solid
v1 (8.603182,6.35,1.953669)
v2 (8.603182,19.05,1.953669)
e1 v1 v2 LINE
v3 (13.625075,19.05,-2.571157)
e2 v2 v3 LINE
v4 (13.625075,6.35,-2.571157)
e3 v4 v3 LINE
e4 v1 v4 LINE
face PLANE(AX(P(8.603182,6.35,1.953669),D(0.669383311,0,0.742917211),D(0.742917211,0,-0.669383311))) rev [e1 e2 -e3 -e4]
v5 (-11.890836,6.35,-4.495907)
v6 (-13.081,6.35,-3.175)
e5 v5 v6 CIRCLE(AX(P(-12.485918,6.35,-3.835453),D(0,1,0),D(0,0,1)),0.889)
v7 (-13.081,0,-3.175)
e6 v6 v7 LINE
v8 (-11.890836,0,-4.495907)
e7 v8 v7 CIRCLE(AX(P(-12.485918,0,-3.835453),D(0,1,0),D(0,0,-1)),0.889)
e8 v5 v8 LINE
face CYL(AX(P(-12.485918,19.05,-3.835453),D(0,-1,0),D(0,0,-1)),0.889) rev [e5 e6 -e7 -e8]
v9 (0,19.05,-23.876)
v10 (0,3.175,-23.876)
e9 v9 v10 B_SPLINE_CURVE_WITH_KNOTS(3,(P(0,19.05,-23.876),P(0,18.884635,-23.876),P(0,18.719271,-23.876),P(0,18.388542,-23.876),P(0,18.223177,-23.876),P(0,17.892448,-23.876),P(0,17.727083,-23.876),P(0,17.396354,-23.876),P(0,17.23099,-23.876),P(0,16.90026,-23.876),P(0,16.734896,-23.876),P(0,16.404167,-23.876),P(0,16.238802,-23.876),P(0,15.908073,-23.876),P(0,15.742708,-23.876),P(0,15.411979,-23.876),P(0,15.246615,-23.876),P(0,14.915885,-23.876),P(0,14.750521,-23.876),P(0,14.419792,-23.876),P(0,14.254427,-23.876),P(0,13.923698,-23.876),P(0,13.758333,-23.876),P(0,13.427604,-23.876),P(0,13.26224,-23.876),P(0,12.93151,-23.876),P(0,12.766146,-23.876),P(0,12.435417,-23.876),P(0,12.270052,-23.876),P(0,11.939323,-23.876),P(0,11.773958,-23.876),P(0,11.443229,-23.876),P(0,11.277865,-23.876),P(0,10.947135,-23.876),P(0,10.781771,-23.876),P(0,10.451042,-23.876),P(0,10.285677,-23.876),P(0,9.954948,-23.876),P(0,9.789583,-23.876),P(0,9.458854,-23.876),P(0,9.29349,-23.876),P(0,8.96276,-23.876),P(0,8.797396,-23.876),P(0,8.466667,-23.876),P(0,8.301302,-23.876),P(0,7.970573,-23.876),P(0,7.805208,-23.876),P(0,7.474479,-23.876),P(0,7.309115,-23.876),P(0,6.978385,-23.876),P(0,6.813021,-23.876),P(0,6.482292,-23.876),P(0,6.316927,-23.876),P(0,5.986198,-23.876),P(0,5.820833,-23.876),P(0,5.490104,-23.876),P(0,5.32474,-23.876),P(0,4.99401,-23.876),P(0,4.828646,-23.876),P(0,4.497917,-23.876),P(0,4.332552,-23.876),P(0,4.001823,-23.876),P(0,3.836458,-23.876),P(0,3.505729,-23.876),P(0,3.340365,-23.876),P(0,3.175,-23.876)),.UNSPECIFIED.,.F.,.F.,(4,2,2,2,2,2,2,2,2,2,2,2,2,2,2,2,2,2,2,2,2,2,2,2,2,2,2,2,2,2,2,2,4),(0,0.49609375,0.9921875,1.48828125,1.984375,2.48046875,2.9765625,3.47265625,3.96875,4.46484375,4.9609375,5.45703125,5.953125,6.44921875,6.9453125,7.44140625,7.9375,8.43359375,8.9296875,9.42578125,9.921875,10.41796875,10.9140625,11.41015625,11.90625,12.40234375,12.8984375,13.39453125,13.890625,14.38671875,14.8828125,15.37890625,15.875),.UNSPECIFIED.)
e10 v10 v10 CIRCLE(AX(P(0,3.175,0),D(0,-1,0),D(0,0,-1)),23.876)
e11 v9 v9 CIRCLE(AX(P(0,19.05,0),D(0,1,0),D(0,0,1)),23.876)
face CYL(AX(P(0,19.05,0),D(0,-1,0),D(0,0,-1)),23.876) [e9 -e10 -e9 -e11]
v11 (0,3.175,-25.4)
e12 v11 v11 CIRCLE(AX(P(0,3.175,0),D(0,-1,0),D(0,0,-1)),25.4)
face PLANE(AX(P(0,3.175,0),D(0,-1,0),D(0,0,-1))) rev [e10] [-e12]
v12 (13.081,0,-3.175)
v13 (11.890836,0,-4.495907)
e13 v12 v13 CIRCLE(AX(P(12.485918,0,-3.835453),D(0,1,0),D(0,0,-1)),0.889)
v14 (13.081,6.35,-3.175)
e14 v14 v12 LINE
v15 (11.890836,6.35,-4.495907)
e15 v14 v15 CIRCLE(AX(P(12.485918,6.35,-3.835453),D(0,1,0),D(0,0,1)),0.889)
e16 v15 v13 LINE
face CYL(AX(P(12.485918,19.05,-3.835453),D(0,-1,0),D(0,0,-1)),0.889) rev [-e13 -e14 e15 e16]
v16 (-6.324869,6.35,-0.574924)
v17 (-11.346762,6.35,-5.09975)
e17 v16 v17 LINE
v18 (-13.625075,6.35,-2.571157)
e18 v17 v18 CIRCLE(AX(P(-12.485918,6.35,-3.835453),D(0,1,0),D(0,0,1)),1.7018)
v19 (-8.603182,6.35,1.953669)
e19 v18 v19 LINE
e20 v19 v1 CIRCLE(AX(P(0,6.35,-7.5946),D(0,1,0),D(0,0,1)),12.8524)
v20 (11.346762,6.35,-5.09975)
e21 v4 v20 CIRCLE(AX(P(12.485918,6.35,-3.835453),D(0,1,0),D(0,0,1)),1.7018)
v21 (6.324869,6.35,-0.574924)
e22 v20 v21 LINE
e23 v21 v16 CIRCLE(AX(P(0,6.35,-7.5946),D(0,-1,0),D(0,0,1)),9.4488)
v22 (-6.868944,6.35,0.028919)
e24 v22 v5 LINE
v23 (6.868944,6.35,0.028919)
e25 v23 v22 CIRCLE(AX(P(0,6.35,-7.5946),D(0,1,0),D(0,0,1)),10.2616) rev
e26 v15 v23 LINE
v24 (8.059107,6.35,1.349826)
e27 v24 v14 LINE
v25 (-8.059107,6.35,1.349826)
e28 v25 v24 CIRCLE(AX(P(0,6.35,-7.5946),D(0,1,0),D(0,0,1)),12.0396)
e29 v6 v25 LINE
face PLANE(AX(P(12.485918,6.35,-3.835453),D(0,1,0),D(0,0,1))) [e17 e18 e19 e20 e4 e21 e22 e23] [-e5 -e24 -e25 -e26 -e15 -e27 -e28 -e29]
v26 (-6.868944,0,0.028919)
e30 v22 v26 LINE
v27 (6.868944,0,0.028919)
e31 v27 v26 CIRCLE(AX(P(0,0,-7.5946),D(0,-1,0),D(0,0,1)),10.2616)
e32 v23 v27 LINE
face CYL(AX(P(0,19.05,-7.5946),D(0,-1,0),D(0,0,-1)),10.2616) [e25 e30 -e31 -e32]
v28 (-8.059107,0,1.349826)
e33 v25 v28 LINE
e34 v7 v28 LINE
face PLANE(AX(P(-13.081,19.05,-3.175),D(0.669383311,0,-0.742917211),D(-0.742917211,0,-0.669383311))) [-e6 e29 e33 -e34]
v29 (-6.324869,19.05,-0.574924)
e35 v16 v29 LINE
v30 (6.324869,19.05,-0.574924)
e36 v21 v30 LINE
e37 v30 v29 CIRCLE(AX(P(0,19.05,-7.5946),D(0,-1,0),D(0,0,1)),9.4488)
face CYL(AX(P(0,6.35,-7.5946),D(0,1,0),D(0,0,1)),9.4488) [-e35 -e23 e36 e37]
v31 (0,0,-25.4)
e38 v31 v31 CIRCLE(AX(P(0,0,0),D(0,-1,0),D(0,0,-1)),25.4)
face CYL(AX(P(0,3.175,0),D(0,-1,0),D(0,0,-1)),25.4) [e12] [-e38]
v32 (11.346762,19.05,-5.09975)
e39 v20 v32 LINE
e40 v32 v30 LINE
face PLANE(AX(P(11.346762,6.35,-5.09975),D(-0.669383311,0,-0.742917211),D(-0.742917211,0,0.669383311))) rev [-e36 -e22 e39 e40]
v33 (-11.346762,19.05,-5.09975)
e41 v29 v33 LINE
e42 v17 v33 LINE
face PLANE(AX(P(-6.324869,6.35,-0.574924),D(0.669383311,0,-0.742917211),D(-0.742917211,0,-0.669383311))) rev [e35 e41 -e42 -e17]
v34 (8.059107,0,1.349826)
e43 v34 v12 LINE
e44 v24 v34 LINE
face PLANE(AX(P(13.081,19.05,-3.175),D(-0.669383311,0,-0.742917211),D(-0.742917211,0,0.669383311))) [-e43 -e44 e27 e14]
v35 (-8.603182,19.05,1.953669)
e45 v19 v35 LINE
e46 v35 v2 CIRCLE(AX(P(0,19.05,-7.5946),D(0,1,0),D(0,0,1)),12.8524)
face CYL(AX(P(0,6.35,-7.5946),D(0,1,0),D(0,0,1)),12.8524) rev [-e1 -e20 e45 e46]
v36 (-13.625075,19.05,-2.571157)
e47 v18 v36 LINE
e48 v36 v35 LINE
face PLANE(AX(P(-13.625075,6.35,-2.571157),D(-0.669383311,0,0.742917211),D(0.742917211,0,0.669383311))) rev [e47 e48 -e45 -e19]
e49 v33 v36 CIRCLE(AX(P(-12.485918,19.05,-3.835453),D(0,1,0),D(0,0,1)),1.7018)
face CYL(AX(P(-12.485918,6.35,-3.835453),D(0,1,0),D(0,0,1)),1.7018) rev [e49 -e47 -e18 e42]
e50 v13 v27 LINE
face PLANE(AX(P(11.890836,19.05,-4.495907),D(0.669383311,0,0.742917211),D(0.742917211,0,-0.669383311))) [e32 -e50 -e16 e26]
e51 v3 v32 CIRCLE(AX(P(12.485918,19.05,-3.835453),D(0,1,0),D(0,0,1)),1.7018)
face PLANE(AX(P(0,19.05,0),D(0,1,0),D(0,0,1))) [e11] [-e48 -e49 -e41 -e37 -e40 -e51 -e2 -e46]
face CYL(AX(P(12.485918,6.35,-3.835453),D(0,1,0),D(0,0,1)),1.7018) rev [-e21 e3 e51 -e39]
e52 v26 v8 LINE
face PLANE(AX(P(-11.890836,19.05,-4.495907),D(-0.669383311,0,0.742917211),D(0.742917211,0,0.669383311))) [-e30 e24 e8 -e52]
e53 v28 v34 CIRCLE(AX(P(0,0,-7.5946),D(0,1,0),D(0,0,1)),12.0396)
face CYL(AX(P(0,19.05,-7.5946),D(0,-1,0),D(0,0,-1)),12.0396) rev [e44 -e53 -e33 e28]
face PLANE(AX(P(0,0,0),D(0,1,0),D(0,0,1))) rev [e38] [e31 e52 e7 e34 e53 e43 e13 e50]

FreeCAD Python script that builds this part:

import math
import FreeCAD as App
import Part
import Sketcher
from FreeCAD import Vector
Q = App.Units.Quantity

doc = App.newDocument("Part")
body = doc.addObject("PartDesign::Body", "Body")

# Sketch on XZ plane
sketch1 = doc.addObject("Sketcher::SketchObject", "Sketch")
body.addObject(sketch1)
sketch1.AttachmentSupport = (doc.XZ_Plane, [""])
sketch1.MapMode = "FlatFace"
sketch1.addGeometry([
    Part.Circle(Vector(0, 0, 0), Vector(0, 0, 1), 23.876),  # 0
    Part.LineSegment(Vector(-8.059107, 1.349826, 0), Vector(-13.081, -3.175, 0)),  # 1
    Part.ArcOfCircle(Part.Circle(Vector(-12.485918, -3.835453, 0), Vector(0, 0, 1), 0.889), math.radians(132.019486), math.radians(312.019486)),  # 2
    Part.LineSegment(Vector(-11.890836, -4.495907, 0), Vector(-6.868944, 0.028919, 0)),  # 3
    Part.ArcOfCircle(Part.Circle(Vector(0, -7.5946, 0), Vector(0, 0, 1), 10.2616), math.radians(47.980514), math.radians(132.019486)),  # 4
    Part.LineSegment(Vector(6.868944, 0.028919, 0), Vector(11.890836, -4.495907, 0)),  # 5
    Part.ArcOfCircle(Part.Circle(Vector(12.485918, -3.835453, 0), Vector(0, 0, 1), 0.889), math.radians(-132.019486), math.radians(47.980514)),  # 6
    Part.LineSegment(Vector(13.081, -3.175, 0), Vector(8.059107, 1.349826, 0)),  # 7
    Part.ArcOfCircle(Part.Circle(Vector(0, -7.5946, 0), Vector(0, 0, 1), 12.0396), math.radians(47.980514), math.radians(132.019486)),  # 8
], False)
sketch1.addConstraint([
    Sketcher.Constraint("Tangent", 1, 2, 2, 1),
    Sketcher.Constraint("Tangent", 2, 2, 3, 1),
    Sketcher.Constraint("Tangent", 3, 2, 4, 2),
    Sketcher.Constraint("Tangent", 4, 1, 5, 1),
    Sketcher.Constraint("Tangent", 5, 2, 6, 1),
    Sketcher.Constraint("Tangent", 6, 2, 7, 1),
    Sketcher.Constraint("Tangent", 7, 2, 8, 1),
    Sketcher.Constraint("Tangent", 8, 2, 1, 1),
    Sketcher.Constraint("Coincident", 0, 3, -1, 1),
    Sketcher.Constraint("Coincident", 8, 3, 4, 3),
    Sketcher.Constraint("Equal", 2, 6),
    Sketcher.Constraint("Symmetric", 2, 3, 6, 3, -2),
    Sketcher.Constraint("PointOnObject", 4, 3, -2),
    Sketcher.Constraint("Parallel", 1, 3),
    Sketcher.Constraint("Diameter", 0, Q("1.88 in")),
    Sketcher.Constraint("Radius", 2, Q("0.035 in")),
    Sketcher.Constraint("Radius", 4, Q("0.404 in")),
    Sketcher.Constraint("DistanceY", 4, 3, -1, 1, Q("0.299 in")),
    Sketcher.Constraint("DistanceX", 1, 2, -1, 1, Q("0.515 in")),
    Sketcher.Constraint("DistanceY", 1, 2, -1, 1, Q("0.125 in")),
])
pad1 = doc.addObject("PartDesign::Pad", "Pad")
body.addObject(pad1)
pad1.Profile = sketch1
pad1.Length = Q("0.75 in")
pad1.Reversed = True

# Sketch on XZ plane
sketch2 = doc.addObject("Sketcher::SketchObject", "Sketch001")
body.addObject(sketch2)
sketch2.AttachmentSupport = (doc.XZ_Plane, [""])
sketch2.MapMode = "FlatFace"
sketch2.AttachmentOffset = App.Placement(Vector(0, 0, -0.75 * 25.4), App.Rotation())
sketch2.addGeometry([
    Part.LineSegment(Vector(8.603182, 1.953669, 0), Vector(13.625075, -2.571157, 0)),  # 0
    Part.ArcOfCircle(Part.Circle(Vector(12.485918, -3.835453, 0), Vector(0, 0, 1), 1.7018), math.radians(-132.019486), math.radians(47.980514)),  # 1
    Part.LineSegment(Vector(11.346762, -5.09975, 0), Vector(6.324869, -0.574924, 0)),  # 2
    Part.ArcOfCircle(Part.Circle(Vector(0, -7.5946, 0), Vector(0, 0, 1), 9.4488), math.radians(47.980514), math.radians(132.019486)),  # 3
    Part.LineSegment(Vector(-6.324869, -0.574924, 0), Vector(-11.346762, -5.09975, 0)),  # 4
    Part.ArcOfCircle(Part.Circle(Vector(-12.485918, -3.835453, 0), Vector(0, 0, 1), 1.7018), math.radians(132.019486), math.radians(312.019486)),  # 5
    Part.LineSegment(Vector(-13.625075, -2.571157, 0), Vector(-8.603182, 1.953669, 0)),  # 6
    Part.ArcOfCircle(Part.Circle(Vector(0, -7.5946, 0), Vector(0, 0, 1), 12.8524), math.radians(47.980514), math.radians(132.019486)),  # 7
], False)
sketch2.addConstraint([
    Sketcher.Constraint("Tangent", 0, 2, 1, 2),
    Sketcher.Constraint("Tangent", 1, 1, 2, 1),
    Sketcher.Constraint("Tangent", 2, 2, 3, 1),
    Sketcher.Constraint("Tangent", 3, 2, 4, 1),
    Sketcher.Constraint("Tangent", 4, 2, 5, 2),
    Sketcher.Constraint("Tangent", 5, 1, 6, 1),
    Sketcher.Constraint("Tangent", 6, 2, 7, 2),
    Sketcher.Constraint("Tangent", 7, 1, 0, 1),
    Sketcher.Constraint("Coincident", 7, 3, 3, 3),
    Sketcher.Constraint("Equal", 1, 5),
    Sketcher.Constraint("Symmetric", 1, 3, 5, 3, -2),
    Sketcher.Constraint("PointOnObject", 3, 3, -2),
    Sketcher.Constraint("Parallel", 0, 2),
    Sketcher.Constraint("Radius", 1, Q("0.067 in")),
    Sketcher.Constraint("Radius", 3, Q("0.372 in")),
    Sketcher.Constraint("DistanceY", 3, 3, -1, 1, Q("0.299 in")),
    Sketcher.Constraint("DistanceX", -1, 1, 1, 3, 12.485918),
    Sketcher.Constraint("DistanceX", -1, 1, 1, 1, 11.346762),
])
pocket1 = doc.addObject("PartDesign::Pocket", "Pocket")
body.addObject(pocket1)
pocket1.Profile = sketch2
pocket1.Length = Q("0.5 in")
pocket1.Reversed = True

# Sketch on XZ plane
sketch3 = doc.addObject("Sketcher::SketchObject", "Sketch002")
body.addObject(sketch3)
sketch3.AttachmentSupport = (doc.XZ_Plane, [""])
sketch3.MapMode = "FlatFace"
sketch3.addGeometry([
    Part.Circle(Vector(0, 0, 0), Vector(0, 0, 1), 25.4),  # 0
    Part.ArcOfCircle(Part.Circle(Vector(0, -7.5946, 0), Vector(0, 0, 1), 10.2616), math.radians(47.980514), math.radians(132.019486)),  # 1
    Part.LineSegment(Vector(-6.868944, 0.028919, 0), Vector(-11.890836, -4.495907, 0)),  # 2
    Part.ArcOfCircle(Part.Circle(Vector(-12.485918, -3.835453, 0), Vector(0, 0, 1), 0.889), math.radians(132.019486), math.radians(312.019486)),  # 3
    Part.LineSegment(Vector(-13.081, -3.175, 0), Vector(-8.059107, 1.349826, 0)),  # 4
    Part.ArcOfCircle(Part.Circle(Vector(0, -7.5946, 0), Vector(0, 0, 1), 12.0396), math.radians(47.980514), math.radians(132.019486)),  # 5
    Part.LineSegment(Vector(8.059107, 1.349826, 0), Vector(13.081, -3.175, 0)),  # 6
    Part.ArcOfCircle(Part.Circle(Vector(12.485918, -3.835453, 0), Vector(0, 0, 1), 0.889), math.radians(-132.019486), math.radians(47.980514)),  # 7
    Part.LineSegment(Vector(11.890836, -4.495907, 0), Vector(6.868944, 0.028919, 0)),  # 8
], False)
sketch3.addConstraint([
    Sketcher.Constraint("Tangent", 1, 2, 2, 1),
    Sketcher.Constraint("Tangent", 2, 2, 3, 2),
    Sketcher.Constraint("Tangent", 3, 1, 4, 1),
    Sketcher.Constraint("Tangent", 4, 2, 5, 2),
    Sketcher.Constraint("Tangent", 5, 1, 6, 1),
    Sketcher.Constraint("Tangent", 6, 2, 7, 2),
    Sketcher.Constraint("Tangent", 7, 1, 8, 1),
    Sketcher.Constraint("Tangent", 8, 2, 1, 1),
    Sketcher.Constraint("Coincident", 0, 3, -1, 1),
    Sketcher.Constraint("Coincident", 5, 3, 1, 3),
    Sketcher.Constraint("Equal", 3, 7),
    Sketcher.Constraint("Symmetric", 3, 3, 7, 3, -2),
    Sketcher.Constraint("PointOnObject", 1, 3, -2),
    Sketcher.Constraint("Parallel", 2, 4),
    Sketcher.Constraint("Diameter", 0, Q("2 in")),
    Sketcher.Constraint("Radius", 1, Q("0.404 in")),
    Sketcher.Constraint("Radius", 3, Q("0.035 in")),
    Sketcher.Constraint("DistanceY", 1, 3, -1, 1, Q("0.299 in")),
    Sketcher.Constraint("DistanceX", 3, 1, -1, 1, Q("0.515 in")),
    Sketcher.Constraint("DistanceY", 3, 1, -1, 1, Q("0.125 in")),
])
pad2 = doc.addObject("PartDesign::Pad", "Pad001")
body.addObject(pad2)
pad2.Profile = sketch3
pad2.Length = Q("0.125 in")
pad2.Reversed = True

doc.recompute()
